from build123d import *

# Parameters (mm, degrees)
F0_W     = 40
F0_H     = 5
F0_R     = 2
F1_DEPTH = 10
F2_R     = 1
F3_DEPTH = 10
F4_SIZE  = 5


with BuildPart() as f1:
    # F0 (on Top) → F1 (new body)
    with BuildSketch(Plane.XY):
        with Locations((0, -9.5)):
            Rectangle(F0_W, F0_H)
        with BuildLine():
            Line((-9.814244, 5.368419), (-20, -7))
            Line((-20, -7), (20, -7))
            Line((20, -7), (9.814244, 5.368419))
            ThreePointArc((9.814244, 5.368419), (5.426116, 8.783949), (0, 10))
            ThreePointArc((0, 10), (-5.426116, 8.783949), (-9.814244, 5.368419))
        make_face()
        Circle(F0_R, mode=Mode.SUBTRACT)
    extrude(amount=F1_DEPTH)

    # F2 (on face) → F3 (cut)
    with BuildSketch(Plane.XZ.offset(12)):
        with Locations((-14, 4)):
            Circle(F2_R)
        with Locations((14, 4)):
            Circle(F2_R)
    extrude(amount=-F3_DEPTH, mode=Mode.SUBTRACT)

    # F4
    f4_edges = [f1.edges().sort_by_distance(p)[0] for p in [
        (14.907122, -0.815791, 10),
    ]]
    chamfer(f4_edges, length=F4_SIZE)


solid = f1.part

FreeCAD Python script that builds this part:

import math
import FreeCAD as App
import Part
import Sketcher
from FreeCAD import Vector


def edges_at(feature, points):
    """Names of the edges that pass closest to the given points."""
    edges = feature.Shape.Edges
    near = lambda p: min(range(len(edges)), key=lambda i: edges[i].distToShape(Part.Vertex(*p))[0])
    return sorted({f"Edge{near(p) + 1}" for p in points})

doc = App.newDocument("Part")
params = doc.addObject("Spreadsheet::Sheet", "Params")
for row, (alias, value) in enumerate([
    ("sketch1_diameter", "4 mm"),
    ("sketch1_width", "40 mm"),
    ("sketch1_height", "5 mm"),
    ("pad1_length", "10 mm"),
    ("sketch2_diameter", "2 mm"),
    ("pocket1_length", "10 mm"),
    ("chamfer_size", "5 mm"),
], start=1):
    params.set(f"A{row}", alias)
    params.set(f"B{row}", "=" + value)
    params.setAlias(f"B{row}", alias)

body = doc.addObject("PartDesign::Body", "Body")

# Sketch on XY plane
sketch1 = body.newObject("Sketcher::SketchObject", "Sketch")
sketch1.AttachmentSupport = (doc.getObject("XY_Plane"), [""])
sketch1.MapMode = "FlatFace"
sketch1.addGeometry([
    Part.LineSegment(Vector(-20, -7, 0), Vector(-20, -12, 0)),  # 0
    Part.LineSegment(Vector(-20, -12, 0), Vector(20, -12, 0)),  # 1
    Part.LineSegment(Vector(20, -12, 0), Vector(20, -7, 0)),  # 2
    Part.LineSegment(Vector(20, -7, 0), Vector(9.814244, 5.368419, 0)),  # 3
    Part.ArcOfCircle(Part.Circle(Vector(0.000002, -2.713898, 0), Vector(0, 0, 1), 12.713898), math.radians(39.472458), math.radians(90.000008)),  # 4
    Part.ArcOfCircle(Part.Circle(Vector(-0.000002, -2.713898, 0), Vector(0, 0, 1), 12.713898), math.radians(89.999992), math.radians(140.527542)),  # 5
    Part.LineSegment(Vector(-9.814244, 5.368419, 0), Vector(-20, -7, 0)),  # 6
    Part.Circle(Vector(0, 0, 0), Vector(0, 0, 1), 2),  # 7
], False)
sketch1.addConstraint([
    Sketcher.Constraint("Coincident", 0, 2, 1, 1),
    Sketcher.Constraint("Coincident", 1, 2, 2, 1),
    Sketcher.Constraint("Coincident", 2, 2, 3, 1),
    Sketcher.Constraint("Tangent", 3, 2, 4, 1),
    Sketcher.Constraint("Tangent", 4, 2, 5, 1),
    Sketcher.Constraint("Tangent", 5, 2, 6, 1),
    Sketcher.Constraint("Coincident", 6, 2, 0, 1),
    Sketcher.Constraint("Vertical", 0),
    Sketcher.Constraint("Horizontal", 1),
    Sketcher.Constraint("Vertical", 2),
    Sketcher.Constraint("Coincident", 7, 3, -1, 1),
    Sketcher.Constraint("Equal", 4, 5),
    Sketcher.Constraint("Symmetric", 3, 2, 5, 2, -2),
    Sketcher.Constraint("PointOnObject", 4, 2, -2),
    Sketcher.Constraint("Horizontal", 2, 2, 6, 2),
    Sketcher.Constraint("Diameter", 7, 4.0),
    Sketcher.Constraint("DistanceX", 1, 1, 1, 2, 40.0),
    Sketcher.Constraint("DistanceY", 0, 2, 0, 1, 5.0),
    Sketcher.Constraint("DistanceY", 0, 2, -1, 1, 12.0),
    Sketcher.Constraint("DistanceY", -1, 1, 4, 2, 10.0),
    Sketcher.Constraint("Radius", 4, 12.713898),
])
sketch1.setExpression("Constraints[15]", "Params.sketch1_diameter")
sketch1.setExpression("Constraints[16]", "Params.sketch1_width")
sketch1.setExpression("Constraints[17]", "Params.sketch1_height")
pad1 = body.newObject("PartDesign::Pad", "Pad")
pad1.Profile = sketch1
pad1.setExpression("Length", "Params.pad1_length")

# Sketch on XZ plane
sketch2 = body.newObject("Sketcher::SketchObject", "Sketch001")
sketch2.AttachmentSupport = (doc.getObject("XZ_Plane"), [""])
sketch2.MapMode = "FlatFace"
sketch2.AttachmentOffset = App.Placement(Vector(0, 0, 12), App.Rotation())
sketch2.addGeometry([
    Part.Circle(Vector(-14, 4, 0), Vector(0, 0, 1), 1),
    Part.Circle(Vector(14, 4, 0), Vector(0, 0, 1), 1),
], False)
sketch2.addConstraint([
    Sketcher.Constraint("Equal", 0, 1),
    Sketcher.Constraint("Symmetric", 0, 3, 1, 3, -2),
    Sketcher.Constraint("Diameter", 0, 2.0),
    Sketcher.Constraint("DistanceX", 0, 3, -1, 1, 14.0),
    Sketcher.Constraint("DistanceY", -1, 1, 0, 3, 4.0),
])
sketch2.setExpression("Constraints[2]", "Params.sketch2_diameter")
pocket1 = body.newObject("PartDesign::Pocket", "Pocket")
pocket1.Profile = sketch2
pocket1.setExpression("Length", "Params.pocket1_length")
doc.recompute()

chamfer = body.newObject("PartDesign::Chamfer", "Chamfer")
chamfer.Base = (pocket1, edges_at(pocket1, [(14.907, -0.816, 10)]))
chamfer.setExpression("Size", "Params.chamfer_size")

doc.recompute()
